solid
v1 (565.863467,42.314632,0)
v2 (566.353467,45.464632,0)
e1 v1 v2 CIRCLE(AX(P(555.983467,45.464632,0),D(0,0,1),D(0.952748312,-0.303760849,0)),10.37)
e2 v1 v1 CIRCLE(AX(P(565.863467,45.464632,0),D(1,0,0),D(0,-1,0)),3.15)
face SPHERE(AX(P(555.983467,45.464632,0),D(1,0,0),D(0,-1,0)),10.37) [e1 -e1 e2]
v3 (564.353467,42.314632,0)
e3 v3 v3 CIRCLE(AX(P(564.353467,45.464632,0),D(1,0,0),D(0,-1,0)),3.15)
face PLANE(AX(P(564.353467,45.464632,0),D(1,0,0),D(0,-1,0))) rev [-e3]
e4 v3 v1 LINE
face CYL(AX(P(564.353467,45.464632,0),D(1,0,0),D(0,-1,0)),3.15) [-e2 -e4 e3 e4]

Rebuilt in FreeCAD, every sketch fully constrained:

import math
import FreeCAD as App
import Part
import Sketcher

doc = App.newDocument("Part")
params = doc.addObject("Spreadsheet::Sheet", "Params")
for row, (alias, value) in enumerate([
    ("sketch1_width", "2 mm"),
    ("sketch1_radius", "10.37 mm"),
    ("sketch1_width2", "1.51 mm"),
    ("revolution_angle", "360 deg"),
], start=1):
    params.set(f"A{row}", alias)
    params.set(f"B{row}", "=" + value)
    params.setAlias(f"B{row}", alias)

body = doc.addObject("PartDesign::Body", "Body")

# Sketch on XY plane
sketch1 = body.newObject("Sketcher::SketchObject", "Sketch")
sketch1.AttachmentSupport = (doc.getObject("XY_Plane"), [""])
sketch1.MapMode = "FlatFace"
sketch1.addGeometry(Part.LineSegment(App.Vector(564.4, 48.6, 0), App.Vector(564.4, 45.5, 0)), False)
sketch1.addGeometry(Part.LineSegment(App.Vector(564.4, 45.5, 0), App.Vector(566.4, 45.5, 0)), False)
sketch1.addGeometry(Part.ArcOfCircle(Part.Circle(App.Vector(556, 45.5, 0), App.Vector(0, 0, 1), 10.4), math.radians(0), math.radians(17.68)), False)
sketch1.addGeometry(Part.LineSegment(App.Vector(565.9, 48.6, 0), App.Vector(564.4, 48.6, 0)), False)
sketch1.addGeometry(Part.LineSegment(App.Vector(556, 45.5, 0), App.Vector(566.4, 45.5, 0)), True)  # axis
sketch1.addConstraint(Sketcher.Constraint("Coincident", 0, 2, 1, 1))
sketch1.addConstraint(Sketcher.Constraint("Coincident", 1, 2, 2, 1))
sketch1.addConstraint(Sketcher.Constraint("Coincident", 2, 2, 3, 1))
sketch1.addConstraint(Sketcher.Constraint("Coincident", 3, 2, 0, 1))
sketch1.addConstraint(Sketcher.Constraint("Vertical", 0))
sketch1.addConstraint(Sketcher.Constraint("Horizontal", 1))
sketch1.addConstraint(Sketcher.Constraint("Horizontal", 3))
sketch1.addConstraint(Sketcher.Constraint("Horizontal", 4))
sketch1.addConstraint(Sketcher.Constraint("Coincident", 4, 1, 2, 3))
sketch1.addConstraint(Sketcher.Constraint("Coincident", 4, 2, 1, 2))
sketch1.addConstraint(Sketcher.Constraint("DistanceX", 1, 1, 1, 2, 2.0))
sketch1.addConstraint(Sketcher.Constraint("Radius", 2, 10.37))
sketch1.addConstraint(Sketcher.Constraint("DistanceX", 3, 2, 3, 1, 1.51))
sketch1.addConstraint(Sketcher.Constraint("DistanceX", -1, 1, 2, 3, 555.983467))
sketch1.addConstraint(Sketcher.Constraint("DistanceY", -1, 1, 2, 3, 45.464632))
sketch1.setExpression("Constraints[10]", "Params.sketch1_width")
sketch1.setExpression("Constraints[11]", "Params.sketch1_radius")
sketch1.setExpression("Constraints[12]", "Params.sketch1_width2")
revolution = body.newObject("PartDesign::Revolution", "Revolution")
revolution.Profile = sketch1
revolution.ReferenceAxis = (sketch1, ["Axis0"])
revolution.setExpression("Angle", "Params.revolution_angle")

doc.recompute()
